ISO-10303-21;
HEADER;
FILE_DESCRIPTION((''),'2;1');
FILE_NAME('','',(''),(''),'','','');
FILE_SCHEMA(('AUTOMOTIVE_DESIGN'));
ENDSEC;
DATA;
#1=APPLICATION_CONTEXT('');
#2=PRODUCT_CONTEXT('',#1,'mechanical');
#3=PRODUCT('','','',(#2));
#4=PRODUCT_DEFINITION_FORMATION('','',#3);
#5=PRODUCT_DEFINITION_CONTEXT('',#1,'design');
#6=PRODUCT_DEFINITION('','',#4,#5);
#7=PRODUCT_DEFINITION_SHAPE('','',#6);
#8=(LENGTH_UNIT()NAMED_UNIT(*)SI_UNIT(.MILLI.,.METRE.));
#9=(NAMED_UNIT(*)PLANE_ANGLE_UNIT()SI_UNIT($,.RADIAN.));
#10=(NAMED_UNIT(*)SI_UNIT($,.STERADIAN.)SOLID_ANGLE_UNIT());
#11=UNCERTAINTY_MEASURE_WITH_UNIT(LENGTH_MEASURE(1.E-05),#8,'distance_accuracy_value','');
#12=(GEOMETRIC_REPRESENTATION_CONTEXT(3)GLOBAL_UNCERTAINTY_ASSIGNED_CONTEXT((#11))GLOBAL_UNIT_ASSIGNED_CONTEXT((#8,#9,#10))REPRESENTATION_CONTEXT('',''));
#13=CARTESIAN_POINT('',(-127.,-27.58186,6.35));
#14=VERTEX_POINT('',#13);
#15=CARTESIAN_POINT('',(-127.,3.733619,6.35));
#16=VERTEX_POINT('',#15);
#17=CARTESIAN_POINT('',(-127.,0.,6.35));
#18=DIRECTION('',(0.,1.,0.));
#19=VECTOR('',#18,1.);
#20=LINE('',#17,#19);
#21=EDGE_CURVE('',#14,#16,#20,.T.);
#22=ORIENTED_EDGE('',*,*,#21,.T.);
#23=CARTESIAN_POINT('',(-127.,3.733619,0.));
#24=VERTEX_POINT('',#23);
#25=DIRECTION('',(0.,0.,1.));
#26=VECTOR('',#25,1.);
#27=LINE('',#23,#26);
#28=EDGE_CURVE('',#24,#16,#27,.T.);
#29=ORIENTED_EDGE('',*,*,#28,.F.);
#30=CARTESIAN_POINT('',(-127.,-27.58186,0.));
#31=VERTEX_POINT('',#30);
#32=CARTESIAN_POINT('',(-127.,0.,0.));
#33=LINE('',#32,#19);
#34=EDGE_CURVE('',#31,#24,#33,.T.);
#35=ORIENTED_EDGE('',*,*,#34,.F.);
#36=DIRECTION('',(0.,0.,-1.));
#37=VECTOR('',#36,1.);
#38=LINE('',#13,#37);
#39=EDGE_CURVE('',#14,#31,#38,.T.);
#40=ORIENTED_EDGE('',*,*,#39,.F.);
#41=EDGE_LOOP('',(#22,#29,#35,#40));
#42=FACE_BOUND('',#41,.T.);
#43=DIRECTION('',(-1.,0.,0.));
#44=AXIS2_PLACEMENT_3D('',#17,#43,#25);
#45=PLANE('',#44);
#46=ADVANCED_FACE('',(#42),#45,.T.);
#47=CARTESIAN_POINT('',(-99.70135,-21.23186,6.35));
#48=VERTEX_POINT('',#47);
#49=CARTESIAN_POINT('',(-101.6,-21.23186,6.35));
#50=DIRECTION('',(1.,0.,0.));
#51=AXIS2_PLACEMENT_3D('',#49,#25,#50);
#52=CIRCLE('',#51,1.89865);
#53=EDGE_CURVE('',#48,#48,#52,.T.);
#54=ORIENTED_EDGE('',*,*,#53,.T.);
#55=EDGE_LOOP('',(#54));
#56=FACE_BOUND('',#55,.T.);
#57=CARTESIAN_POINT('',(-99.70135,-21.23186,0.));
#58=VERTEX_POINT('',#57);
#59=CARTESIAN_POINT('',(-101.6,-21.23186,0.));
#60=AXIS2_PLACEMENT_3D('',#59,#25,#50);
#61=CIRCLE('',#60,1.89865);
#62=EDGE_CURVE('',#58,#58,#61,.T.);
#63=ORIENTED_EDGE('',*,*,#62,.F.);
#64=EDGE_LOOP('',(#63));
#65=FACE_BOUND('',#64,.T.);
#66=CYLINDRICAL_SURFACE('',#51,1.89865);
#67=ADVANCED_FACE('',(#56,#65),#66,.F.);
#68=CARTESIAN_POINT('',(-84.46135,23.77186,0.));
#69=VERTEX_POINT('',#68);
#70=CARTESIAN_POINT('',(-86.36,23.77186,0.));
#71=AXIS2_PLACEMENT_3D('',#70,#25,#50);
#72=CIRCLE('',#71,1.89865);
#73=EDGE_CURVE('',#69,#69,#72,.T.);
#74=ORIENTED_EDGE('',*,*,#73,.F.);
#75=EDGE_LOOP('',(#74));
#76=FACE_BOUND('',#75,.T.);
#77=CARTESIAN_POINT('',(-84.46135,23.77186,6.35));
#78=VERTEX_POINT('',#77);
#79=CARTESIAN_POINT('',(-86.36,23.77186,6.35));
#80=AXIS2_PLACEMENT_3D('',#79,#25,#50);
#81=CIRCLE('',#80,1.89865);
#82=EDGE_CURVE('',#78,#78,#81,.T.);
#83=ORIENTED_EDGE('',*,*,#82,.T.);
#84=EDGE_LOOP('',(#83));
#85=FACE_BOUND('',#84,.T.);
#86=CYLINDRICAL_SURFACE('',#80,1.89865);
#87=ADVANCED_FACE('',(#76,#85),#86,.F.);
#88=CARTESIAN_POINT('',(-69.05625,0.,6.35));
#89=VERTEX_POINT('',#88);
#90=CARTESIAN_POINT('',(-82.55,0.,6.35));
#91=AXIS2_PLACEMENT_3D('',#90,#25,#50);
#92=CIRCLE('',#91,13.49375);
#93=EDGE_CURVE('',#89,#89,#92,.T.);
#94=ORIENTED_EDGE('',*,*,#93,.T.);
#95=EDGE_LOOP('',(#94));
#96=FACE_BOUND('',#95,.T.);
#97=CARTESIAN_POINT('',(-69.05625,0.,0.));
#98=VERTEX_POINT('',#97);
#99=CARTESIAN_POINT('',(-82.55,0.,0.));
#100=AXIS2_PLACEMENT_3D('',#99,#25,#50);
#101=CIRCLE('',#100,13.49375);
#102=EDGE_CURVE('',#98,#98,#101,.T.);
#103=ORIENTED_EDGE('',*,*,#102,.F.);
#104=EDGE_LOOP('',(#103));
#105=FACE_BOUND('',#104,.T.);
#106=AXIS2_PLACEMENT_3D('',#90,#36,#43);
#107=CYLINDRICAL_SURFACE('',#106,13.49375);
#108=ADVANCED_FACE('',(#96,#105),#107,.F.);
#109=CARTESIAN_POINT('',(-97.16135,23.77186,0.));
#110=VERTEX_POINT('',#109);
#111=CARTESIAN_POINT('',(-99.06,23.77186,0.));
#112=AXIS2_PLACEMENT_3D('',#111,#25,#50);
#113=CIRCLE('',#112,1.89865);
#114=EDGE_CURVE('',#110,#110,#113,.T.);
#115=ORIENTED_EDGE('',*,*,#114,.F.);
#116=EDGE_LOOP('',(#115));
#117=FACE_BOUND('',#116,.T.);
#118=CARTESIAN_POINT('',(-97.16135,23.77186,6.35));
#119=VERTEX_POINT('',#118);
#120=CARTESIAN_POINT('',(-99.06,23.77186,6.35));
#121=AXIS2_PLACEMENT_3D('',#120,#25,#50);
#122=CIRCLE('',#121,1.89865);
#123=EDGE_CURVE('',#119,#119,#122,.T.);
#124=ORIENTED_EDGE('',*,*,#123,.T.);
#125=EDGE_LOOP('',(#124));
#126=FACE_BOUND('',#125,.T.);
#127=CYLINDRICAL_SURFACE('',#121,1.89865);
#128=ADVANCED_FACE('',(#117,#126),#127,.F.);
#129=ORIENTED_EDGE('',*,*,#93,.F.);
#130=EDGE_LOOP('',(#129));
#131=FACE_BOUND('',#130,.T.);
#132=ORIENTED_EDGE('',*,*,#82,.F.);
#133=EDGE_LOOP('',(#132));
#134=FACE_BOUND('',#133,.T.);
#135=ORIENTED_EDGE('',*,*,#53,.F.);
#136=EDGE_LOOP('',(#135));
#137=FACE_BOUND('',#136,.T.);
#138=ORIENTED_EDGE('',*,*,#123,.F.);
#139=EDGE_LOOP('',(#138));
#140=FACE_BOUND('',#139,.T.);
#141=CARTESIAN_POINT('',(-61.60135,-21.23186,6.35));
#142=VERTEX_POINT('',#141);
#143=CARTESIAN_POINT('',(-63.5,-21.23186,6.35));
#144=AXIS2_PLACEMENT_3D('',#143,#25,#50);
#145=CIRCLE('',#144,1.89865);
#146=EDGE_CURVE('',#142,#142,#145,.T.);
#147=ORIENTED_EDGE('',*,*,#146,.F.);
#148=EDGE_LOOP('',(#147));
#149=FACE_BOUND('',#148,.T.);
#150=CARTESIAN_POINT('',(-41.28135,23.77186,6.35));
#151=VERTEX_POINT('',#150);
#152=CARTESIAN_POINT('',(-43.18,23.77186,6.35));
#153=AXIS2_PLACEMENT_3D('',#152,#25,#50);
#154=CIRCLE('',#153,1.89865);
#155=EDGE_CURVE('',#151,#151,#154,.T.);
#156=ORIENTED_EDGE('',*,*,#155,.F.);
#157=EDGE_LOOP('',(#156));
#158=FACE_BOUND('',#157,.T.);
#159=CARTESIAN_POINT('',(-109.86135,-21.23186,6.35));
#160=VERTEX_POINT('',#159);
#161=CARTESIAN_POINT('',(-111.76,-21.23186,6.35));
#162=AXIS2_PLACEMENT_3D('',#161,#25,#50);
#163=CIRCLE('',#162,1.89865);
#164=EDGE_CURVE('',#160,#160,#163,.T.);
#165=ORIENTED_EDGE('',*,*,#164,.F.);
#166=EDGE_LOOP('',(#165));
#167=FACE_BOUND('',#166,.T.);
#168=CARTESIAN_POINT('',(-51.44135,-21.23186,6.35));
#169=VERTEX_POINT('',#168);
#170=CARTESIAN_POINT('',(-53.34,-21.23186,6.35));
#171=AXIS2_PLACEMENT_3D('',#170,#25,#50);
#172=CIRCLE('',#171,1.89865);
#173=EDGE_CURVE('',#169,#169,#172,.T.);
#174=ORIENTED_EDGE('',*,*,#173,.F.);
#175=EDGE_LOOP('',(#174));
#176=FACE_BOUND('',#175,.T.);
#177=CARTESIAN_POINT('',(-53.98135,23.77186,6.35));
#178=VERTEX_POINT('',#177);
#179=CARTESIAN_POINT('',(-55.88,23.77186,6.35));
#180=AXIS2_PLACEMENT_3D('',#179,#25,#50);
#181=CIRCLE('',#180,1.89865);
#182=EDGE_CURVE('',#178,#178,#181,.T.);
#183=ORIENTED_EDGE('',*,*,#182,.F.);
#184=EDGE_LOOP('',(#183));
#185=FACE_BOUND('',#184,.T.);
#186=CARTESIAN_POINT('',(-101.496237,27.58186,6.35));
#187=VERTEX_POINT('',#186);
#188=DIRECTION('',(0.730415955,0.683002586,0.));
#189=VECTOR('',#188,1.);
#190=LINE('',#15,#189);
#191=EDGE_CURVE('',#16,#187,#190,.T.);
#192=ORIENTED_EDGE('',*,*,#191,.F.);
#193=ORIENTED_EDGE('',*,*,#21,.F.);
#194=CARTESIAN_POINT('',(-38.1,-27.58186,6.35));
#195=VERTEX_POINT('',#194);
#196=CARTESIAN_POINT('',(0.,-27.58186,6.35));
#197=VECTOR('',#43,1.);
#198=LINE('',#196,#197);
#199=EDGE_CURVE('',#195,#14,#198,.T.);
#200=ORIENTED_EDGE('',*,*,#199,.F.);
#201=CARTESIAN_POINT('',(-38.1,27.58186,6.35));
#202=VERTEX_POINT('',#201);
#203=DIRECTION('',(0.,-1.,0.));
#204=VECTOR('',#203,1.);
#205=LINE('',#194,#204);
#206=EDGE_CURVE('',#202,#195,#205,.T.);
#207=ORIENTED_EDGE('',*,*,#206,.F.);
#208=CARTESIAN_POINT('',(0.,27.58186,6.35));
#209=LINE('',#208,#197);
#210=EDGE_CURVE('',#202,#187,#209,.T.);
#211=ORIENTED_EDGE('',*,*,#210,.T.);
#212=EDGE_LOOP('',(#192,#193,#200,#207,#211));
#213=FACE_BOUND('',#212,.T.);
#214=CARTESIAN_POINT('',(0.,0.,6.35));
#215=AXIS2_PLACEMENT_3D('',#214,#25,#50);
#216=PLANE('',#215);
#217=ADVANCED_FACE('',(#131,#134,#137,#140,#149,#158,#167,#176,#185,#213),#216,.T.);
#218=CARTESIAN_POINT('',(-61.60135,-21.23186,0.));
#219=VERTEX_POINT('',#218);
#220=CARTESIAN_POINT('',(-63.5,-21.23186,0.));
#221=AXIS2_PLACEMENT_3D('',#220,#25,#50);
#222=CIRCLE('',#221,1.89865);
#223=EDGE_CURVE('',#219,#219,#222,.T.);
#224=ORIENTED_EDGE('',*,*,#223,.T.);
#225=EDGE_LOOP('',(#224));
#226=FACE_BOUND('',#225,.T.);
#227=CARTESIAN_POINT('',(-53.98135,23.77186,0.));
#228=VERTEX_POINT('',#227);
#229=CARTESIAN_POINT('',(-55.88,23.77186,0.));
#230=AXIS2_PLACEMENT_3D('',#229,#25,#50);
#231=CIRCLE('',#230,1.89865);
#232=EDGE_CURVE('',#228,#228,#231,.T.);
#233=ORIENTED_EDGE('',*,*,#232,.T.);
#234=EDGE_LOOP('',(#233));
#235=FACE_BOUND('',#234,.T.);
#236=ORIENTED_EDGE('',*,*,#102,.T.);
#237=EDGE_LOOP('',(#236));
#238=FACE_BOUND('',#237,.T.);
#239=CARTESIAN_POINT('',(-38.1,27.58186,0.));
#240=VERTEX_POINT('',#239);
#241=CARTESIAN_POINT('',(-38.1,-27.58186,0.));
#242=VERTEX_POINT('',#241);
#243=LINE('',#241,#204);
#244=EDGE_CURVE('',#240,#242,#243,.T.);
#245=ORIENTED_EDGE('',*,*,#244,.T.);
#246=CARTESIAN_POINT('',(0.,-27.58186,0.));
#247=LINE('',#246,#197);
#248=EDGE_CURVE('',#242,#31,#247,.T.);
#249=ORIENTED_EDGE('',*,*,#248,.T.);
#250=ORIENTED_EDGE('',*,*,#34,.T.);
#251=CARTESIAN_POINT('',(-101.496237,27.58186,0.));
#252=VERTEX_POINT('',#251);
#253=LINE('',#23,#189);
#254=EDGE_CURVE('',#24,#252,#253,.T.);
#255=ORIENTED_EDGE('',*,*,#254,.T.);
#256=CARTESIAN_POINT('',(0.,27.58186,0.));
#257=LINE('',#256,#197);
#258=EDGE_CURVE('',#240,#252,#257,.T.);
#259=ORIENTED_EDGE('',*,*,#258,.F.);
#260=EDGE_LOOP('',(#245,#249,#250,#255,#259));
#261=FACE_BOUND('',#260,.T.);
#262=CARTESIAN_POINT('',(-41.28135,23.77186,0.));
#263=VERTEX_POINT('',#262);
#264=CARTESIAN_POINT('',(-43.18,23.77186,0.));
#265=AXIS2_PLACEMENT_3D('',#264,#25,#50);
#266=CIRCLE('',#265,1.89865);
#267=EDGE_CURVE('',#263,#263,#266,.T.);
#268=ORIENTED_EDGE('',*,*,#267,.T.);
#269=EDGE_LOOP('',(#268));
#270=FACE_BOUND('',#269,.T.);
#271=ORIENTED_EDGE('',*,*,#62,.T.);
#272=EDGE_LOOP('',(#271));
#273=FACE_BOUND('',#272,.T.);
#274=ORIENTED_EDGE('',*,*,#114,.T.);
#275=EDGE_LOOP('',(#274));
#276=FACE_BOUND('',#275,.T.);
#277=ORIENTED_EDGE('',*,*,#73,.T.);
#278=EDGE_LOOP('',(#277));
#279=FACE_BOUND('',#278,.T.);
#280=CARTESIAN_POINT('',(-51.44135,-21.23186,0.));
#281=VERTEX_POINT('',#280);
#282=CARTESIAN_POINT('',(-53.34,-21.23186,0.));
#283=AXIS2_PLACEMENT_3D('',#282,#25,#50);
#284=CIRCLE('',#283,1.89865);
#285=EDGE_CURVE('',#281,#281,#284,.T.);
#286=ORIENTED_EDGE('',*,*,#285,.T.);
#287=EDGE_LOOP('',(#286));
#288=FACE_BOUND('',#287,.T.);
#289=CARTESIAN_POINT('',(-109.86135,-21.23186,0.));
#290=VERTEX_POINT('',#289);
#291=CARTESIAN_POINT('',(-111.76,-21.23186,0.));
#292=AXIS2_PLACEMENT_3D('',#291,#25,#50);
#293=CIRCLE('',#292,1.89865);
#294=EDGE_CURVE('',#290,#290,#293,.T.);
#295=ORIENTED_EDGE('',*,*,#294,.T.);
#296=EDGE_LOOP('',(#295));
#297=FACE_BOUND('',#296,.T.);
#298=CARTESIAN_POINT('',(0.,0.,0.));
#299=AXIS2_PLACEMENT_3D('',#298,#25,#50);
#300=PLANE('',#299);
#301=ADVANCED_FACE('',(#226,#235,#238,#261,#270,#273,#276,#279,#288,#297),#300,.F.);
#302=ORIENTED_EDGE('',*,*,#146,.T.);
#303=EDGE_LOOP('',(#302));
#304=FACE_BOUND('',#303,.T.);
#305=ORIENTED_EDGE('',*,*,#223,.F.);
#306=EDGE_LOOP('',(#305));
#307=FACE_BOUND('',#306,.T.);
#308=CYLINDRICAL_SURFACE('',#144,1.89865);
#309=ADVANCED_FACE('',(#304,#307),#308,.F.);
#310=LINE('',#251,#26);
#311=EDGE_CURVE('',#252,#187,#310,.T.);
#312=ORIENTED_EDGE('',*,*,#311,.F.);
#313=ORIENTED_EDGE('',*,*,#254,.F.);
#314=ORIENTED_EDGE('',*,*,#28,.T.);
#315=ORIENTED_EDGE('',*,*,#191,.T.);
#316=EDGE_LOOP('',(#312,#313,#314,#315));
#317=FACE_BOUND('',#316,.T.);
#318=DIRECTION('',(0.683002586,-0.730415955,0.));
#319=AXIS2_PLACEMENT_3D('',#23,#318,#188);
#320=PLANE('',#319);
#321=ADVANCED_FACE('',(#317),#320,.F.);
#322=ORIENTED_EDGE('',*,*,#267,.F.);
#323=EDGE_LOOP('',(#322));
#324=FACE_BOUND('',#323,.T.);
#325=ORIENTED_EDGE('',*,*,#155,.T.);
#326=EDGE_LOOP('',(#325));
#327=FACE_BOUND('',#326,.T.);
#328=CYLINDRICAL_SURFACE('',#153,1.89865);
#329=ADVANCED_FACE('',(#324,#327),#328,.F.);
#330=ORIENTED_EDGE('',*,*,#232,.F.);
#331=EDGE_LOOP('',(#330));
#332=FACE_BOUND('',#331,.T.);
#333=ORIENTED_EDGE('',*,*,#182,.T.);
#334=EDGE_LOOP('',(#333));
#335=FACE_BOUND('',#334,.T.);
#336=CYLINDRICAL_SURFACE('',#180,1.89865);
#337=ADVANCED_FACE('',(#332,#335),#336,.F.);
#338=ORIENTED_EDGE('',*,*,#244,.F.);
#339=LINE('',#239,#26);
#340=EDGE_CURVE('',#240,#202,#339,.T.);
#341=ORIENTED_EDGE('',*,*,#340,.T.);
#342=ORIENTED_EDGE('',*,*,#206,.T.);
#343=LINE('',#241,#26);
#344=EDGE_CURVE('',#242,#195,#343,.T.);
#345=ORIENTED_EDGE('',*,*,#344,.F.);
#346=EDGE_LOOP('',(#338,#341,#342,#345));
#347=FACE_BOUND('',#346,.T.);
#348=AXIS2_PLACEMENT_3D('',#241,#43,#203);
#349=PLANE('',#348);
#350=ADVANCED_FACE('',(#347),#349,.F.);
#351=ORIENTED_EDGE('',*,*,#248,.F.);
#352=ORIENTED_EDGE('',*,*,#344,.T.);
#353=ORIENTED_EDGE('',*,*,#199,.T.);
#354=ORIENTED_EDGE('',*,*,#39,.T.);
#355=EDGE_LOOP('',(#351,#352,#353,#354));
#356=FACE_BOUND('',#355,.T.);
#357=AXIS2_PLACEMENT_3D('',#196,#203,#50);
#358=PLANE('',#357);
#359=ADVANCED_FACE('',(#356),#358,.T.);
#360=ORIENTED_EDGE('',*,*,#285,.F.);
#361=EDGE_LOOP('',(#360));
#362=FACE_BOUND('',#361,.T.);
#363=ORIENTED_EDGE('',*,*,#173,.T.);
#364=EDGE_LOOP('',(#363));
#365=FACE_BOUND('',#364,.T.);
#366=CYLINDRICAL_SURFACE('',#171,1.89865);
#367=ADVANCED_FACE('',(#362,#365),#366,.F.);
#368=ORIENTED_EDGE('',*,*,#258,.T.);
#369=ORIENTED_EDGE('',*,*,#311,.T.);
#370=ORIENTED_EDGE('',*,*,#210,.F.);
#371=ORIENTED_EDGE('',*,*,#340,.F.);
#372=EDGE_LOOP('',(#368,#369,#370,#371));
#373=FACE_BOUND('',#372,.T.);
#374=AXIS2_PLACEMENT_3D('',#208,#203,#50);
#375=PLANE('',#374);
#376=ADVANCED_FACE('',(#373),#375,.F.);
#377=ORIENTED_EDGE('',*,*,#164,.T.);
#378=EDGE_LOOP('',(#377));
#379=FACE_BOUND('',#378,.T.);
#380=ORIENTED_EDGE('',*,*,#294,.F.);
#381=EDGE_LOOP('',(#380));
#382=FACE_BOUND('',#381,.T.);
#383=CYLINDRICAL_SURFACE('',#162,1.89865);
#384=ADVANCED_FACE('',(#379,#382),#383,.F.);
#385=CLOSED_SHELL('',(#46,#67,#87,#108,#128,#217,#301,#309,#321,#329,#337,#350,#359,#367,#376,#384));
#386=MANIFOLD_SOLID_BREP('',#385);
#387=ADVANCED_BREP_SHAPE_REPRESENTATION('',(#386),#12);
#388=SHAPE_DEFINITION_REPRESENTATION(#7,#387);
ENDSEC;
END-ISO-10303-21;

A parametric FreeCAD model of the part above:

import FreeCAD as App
import Part
import Sketcher
Q = App.Units.Quantity

doc = App.newDocument("Part")
body = doc.addObject("PartDesign::Body", "Body")

sketch1 = body.newObject("Sketcher::SketchObject", "Sketch")
sketch1.AttachmentSupport = (doc.getObject("XY_Plane"), [""])
sketch1.MapMode = "FlatFace"
sketch1.addGeometry([
    Part.LineSegment(App.Vector(-127, 27.58186, 0), App.Vector(-127, -27.58186, 0)),
    Part.LineSegment(App.Vector(-127, -27.58186, 0), App.Vector(127, -27.58186, 0)),
    Part.LineSegment(App.Vector(127, -27.58186, 0), App.Vector(127, 27.58186, 0)),
    Part.LineSegment(App.Vector(127, 27.58186, 0), App.Vector(-127, 27.58186, 0)),
    Part.Circle(App.Vector(-82.55, 0, 0), App.Vector(0, 0, 1), 13.49375),
    Part.Circle(App.Vector(82.55, 0, 0), App.Vector(0, 0, 1), 13.49375),
], False)
sketch1.addConstraint([
    Sketcher.Constraint("Coincident", 0, 2, 1, 1),
    Sketcher.Constraint("Coincident", 1, 2, 2, 1),
    Sketcher.Constraint("Coincident", 2, 2, 3, 1),
    Sketcher.Constraint("Coincident", 3, 2, 0, 1),
    Sketcher.Constraint("Vertical", 0),
    Sketcher.Constraint("Horizontal", 1),
    Sketcher.Constraint("Vertical", 2),
    Sketcher.Constraint("Horizontal", 3),
    Sketcher.Constraint("Equal", 4, 5),
    Sketcher.Constraint("Symmetric", 4, 3, 5, 3, -1, 1),
    Sketcher.Constraint("Symmetric", 0, 2, 2, 2, -1, 1),
    Sketcher.Constraint("PointOnObject", 4, 3, -1),
    Sketcher.Constraint("DistanceX", 1, 1, 1, 2, Q("10 in")),
    Sketcher.Constraint("Diameter", 4, Q("1.0625 in")),
    Sketcher.Constraint("DistanceX", 4, 3, 5, 3, Q("6.5 in")),
    Sketcher.Constraint("DistanceY", 0, 2, 0, 1, Q("2.1718 in")),
])
pad1 = body.newObject("PartDesign::Pad", "Pad")
pad1.Profile = sketch1
pad1.Length = Q("0.25 in")

sketch2 = body.newObject("Sketcher::SketchObject", "Sketch001")
sketch2.AttachmentSupport = (doc.getObject("XY_Plane"), [""])
sketch2.MapMode = "FlatFace"
sketch2.AttachmentOffset = App.Placement(App.Vector(0, 0, 0.25 * 25.4), App.Rotation())
sketch2.addGeometry([
    Part.Circle(App.Vector(-111.76, -21.23186, 0), App.Vector(0, 0, 1), 1.89865),
    Part.Circle(App.Vector(-101.6, -21.23186, 0), App.Vector(0, 0, 1), 1.89865),
    Part.Circle(App.Vector(-63.5, -21.23186, 0), App.Vector(0, 0, 1), 1.89865),
    Part.Circle(App.Vector(-53.34, -21.23186, 0), App.Vector(0, 0, 1), 1.89865),
], False)
sketch2.addConstraint([
    Sketcher.Constraint("Equal", 0, 1),
    Sketcher.Constraint("Equal", 1, 2),
    Sketcher.Constraint("Equal", 2, 3),
    Sketcher.Constraint("Horizontal", 0, 3, 1, 3),
    Sketcher.Constraint("Horizontal", 1, 3, 2, 3),
    Sketcher.Constraint("Horizontal", 2, 3, 3, 3),
    Sketcher.Constraint("DistanceX", 1, 3, -1, 1, Q("4 in")),
    Sketcher.Constraint("Diameter", 0, Q("0.1495 in")),
    Sketcher.Constraint("DistanceX", 0, 3, -1, 1, Q("4.4 in")),
    Sketcher.Constraint("DistanceX", 2, 3, -1, 1, Q("2.5 in")),
    Sketcher.Constraint("DistanceX", 3, 3, -1, 1, Q("2.1 in")),
    Sketcher.Constraint("DistanceY", 0, 3, -1, 1, Q("0.8359 in")),
])
doc.recompute()
hole = body.newObject("PartDesign::Hole", "Hole")
hole.Profile = sketch2
hole.ThreadType = "None"
hole.Diameter = Q("0.1495 in")
hole.DepthType = "ThroughAll"
doc.recompute()

mirrored = body.newObject("PartDesign::Mirrored", "Mirrored")
mirrored.Originals = [hole]
mirrored.MirrorPlane = (doc.getObject("YZ_Plane"), [""])
body.Tip = mirrored

sketch3 = body.newObject("Sketcher::SketchObject", "Sketch002")
sketch3.AttachmentSupport = (doc.getObject("XY_Plane"), [""])
sketch3.MapMode = "FlatFace"
sketch3.AttachmentOffset = App.Placement(App.Vector(0, 0, 0.25 * 25.4), App.Rotation())
sketch3.addGeometry([
    Part.LineSegment(App.Vector(-38.1, 27.58186, 0), App.Vector(-38.1, -27.58186, 0)),
    Part.LineSegment(App.Vector(-38.1, -27.58186, 0), App.Vector(127, -27.58186, 0)),
    Part.LineSegment(App.Vector(127, -27.58186, 0), App.Vector(127, 27.58186, 0)),
    Part.LineSegment(App.Vector(127, 27.58186, 0), App.Vector(-38.1, 27.58186, 0)),
], False)
sketch3.addConstraint([
    Sketcher.Constraint("Coincident", 0, 2, 1, 1),
    Sketcher.Constraint("Coincident", 1, 2, 2, 1),
    Sketcher.Constraint("Coincident", 2, 2, 3, 1),
    Sketcher.Constraint("Coincident", 3, 2, 0, 1),
    Sketcher.Constraint("Vertical", 0),
    Sketcher.Constraint("Horizontal", 1),
    Sketcher.Constraint("Vertical", 2),
    Sketcher.Constraint("Horizontal", 3),
    Sketcher.Constraint("DistanceX", 1, 1, 1, 2, Q("6.5 in")),
    Sketcher.Constraint("DistanceX", -1, 1, 1, 2, Q("5 in")),
    Sketcher.Constraint("DistanceY", 0, 2, 0, 1, Q("2.1718 in")),
    Sketcher.Constraint("DistanceY", 0, 2, -1, 1, Q("1.0859 in")),
])
pocket1 = body.newObject("PartDesign::Pocket", "Pocket")
pocket1.Profile = sketch3
pocket1.Length = Q("0.25 in")

sketch4 = body.newObject("Sketcher::SketchObject", "Sketch003")
sketch4.AttachmentSupport = (doc.getObject("XY_Plane"), [""])
sketch4.MapMode = "FlatFace"
sketch4.AttachmentOffset = App.Placement(App.Vector(0, 0, 0.25 * 25.4), App.Rotation())
sketch4.addGeometry([
    Part.LineSegment(App.Vector(-127, 3.733619, 0), App.Vector(-101.496237, 27.58186, 0)),
    Part.LineSegment(App.Vector(-101.496237, 27.58186, 0), App.Vector(-127, 27.58186, 0)),
    Part.LineSegment(App.Vector(-127, 27.58186, 0), App.Vector(-127, 3.733619, 0)),
], False)
sketch4.addConstraint([
    Sketcher.Constraint("Coincident", 0, 2, 1, 1),
    Sketcher.Constraint("Coincident", 1, 2, 2, 1),
    Sketcher.Constraint("Coincident", 2, 2, 0, 1),
    Sketcher.Constraint("Horizontal", 1),
    Sketcher.Constraint("Vertical", 2),
    Sketcher.Constraint("DistanceX", 1, 2, -1, 1, Q("5 in")),
    Sketcher.Constraint("DistanceY", -1, 1, 0, 2, Q("1.0859 in")),
    Sketcher.Constraint("DistanceY", 2, 2, 2, 1, Q("23.848241 mm")),
    Sketcher.Constraint("DistanceX", 1, 2, 1, 1, Q("25.503763 mm")),
])
pocket2 = body.newObject("PartDesign::Pocket", "Pocket001")
pocket2.Profile = sketch4
pocket2.Length = Q("0.25 in")

sketch5 = body.newObject("Sketcher::SketchObject", "Sketch004")
sketch5.AttachmentSupport = (doc.getObject("XY_Plane"), [""])
sketch5.MapMode = "FlatFace"
sketch5.AttachmentOffset = App.Placement(App.Vector(0, 0, 0.25 * 25.4), App.Rotation())
sketch5.addGeometry([
    Part.Circle(App.Vector(-43.18, 23.77186, 0), App.Vector(0, 0, 1), 1.89865),
    Part.Circle(App.Vector(-55.88, 23.77186, 0), App.Vector(0, 0, 1), 1.89865),
    Part.Circle(App.Vector(-99.06, 23.77186, 0), App.Vector(0, 0, 1), 1.89865),
    Part.Circle(App.Vector(-86.36, 23.77186, 0), App.Vector(0, 0, 1), 1.89865),
], False)
sketch5.addConstraint([
    Sketcher.Constraint("Equal", 0, 1),
    Sketcher.Constraint("Equal", 1, 2),
    Sketcher.Constraint("Equal", 2, 3),
    Sketcher.Constraint("Horizontal", 0, 3, 1, 3),
    Sketcher.Constraint("Horizontal", 1, 3, 2, 3),
    Sketcher.Constraint("Horizontal", 2, 3, 3, 3),
    Sketcher.Constraint("Diameter", 0, Q("0.1495 in")),
    Sketcher.Constraint("DistanceX", 0, 3, -1, 1, Q("1.7 in")),
    Sketcher.Constraint("DistanceX", 1, 3, -1, 1, Q("2.2 in")),
    Sketcher.Constraint("DistanceX", 2, 3, -1, 1, Q("3.9 in")),
    Sketcher.Constraint("DistanceX", 3, 3, -1, 1, Q("3.4 in")),
    Sketcher.Constraint("DistanceY", -1, 1, 0, 3, Q("0.9359 in")),
])
doc.recompute()
hole2 = body.newObject("PartDesign::Hole", "Hole001")
hole2.Profile = sketch5
hole2.ThreadType = "None"
hole2.Diameter = Q("0.1495 in")
hole2.DepthType = "ThroughAll"

doc.recompute()
